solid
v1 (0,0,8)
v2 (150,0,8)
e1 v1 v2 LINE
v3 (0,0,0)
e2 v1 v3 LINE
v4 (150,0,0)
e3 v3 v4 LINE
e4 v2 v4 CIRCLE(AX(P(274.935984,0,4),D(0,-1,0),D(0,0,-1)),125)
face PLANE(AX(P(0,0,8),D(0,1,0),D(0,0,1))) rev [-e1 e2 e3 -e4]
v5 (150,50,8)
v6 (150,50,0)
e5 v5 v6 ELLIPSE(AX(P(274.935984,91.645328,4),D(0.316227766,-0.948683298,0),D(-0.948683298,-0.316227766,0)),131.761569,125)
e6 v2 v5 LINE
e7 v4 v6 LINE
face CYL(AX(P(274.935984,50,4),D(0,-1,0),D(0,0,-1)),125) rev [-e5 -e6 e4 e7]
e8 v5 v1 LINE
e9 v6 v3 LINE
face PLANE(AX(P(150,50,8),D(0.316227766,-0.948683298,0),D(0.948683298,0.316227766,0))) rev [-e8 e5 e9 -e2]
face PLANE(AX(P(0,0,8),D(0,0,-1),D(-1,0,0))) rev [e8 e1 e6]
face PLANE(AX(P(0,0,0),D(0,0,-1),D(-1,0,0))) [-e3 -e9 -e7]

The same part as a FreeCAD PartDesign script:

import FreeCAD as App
import Part
import Sketcher

V = App.Vector


def add_polygon(sketch, points):
    """Adds a closed chain of lines whose ends are joined by coincident constraints."""
    first, n = sketch.GeometryCount, len(points)
    for a, b in zip(points, points[1:] + points[:1]):
        sketch.addGeometry(Part.LineSegment(App.Vector(*a, 0), App.Vector(*b, 0)), False)
    for i in range(n):
        sketch.addConstraint(Sketcher.Constraint("Coincident", first + i, 2, first + (i + 1) % n, 1))

doc = App.newDocument("Part")
body = doc.addObject("PartDesign::Body", "Body")

# Sketch on XY plane
sketch1 = body.newObject("Sketcher::SketchObject", "Sketch")
sketch1.AttachmentSupport = (doc.getObject("XY_Plane"), [""])
sketch1.MapMode = "FlatFace"
add_polygon(sketch1, [(0, 0), (150, 0), (150, 50)])  # lines 0-2
sketch1.addConstraint([
    Sketcher.Constraint("Horizontal", 0),
    Sketcher.Constraint("Vertical", 1),
    Sketcher.Constraint("Coincident", 2, 2, -1, 1),
    Sketcher.Constraint("DistanceX", 0, 1, 0, 2, 150.0),
    Sketcher.Constraint("DistanceY", 1, 1, 1, 2, 50.0),
])
pad1 = body.newObject("PartDesign::Pad", "Pad")
pad1.Profile = sketch1
pad1.Length = 8

# Sketch on XZ plane
sketch2 = body.newObject("Sketcher::SketchObject", "Sketch001")
sketch2.AttachmentSupport = (doc.getObject("XZ_Plane"), [""])
sketch2.MapMode = "FlatFace"
sketch2.addGeometry(Part.Circle(V(275, 4, 0), V(0, 0, 1), 125), False)
sketch2.addConstraint([
    Sketcher.Constraint("Diameter", 0, 250.0),
    Sketcher.Constraint("DistanceY", -1, 1, 0, 3, 4.0),
    Sketcher.Constraint("DistanceX", -1, 1, 0, 3, 274.935984),
])
pocket1 = body.newObject("PartDesign::Pocket", "Pocket")
pocket1.Profile = sketch2
pocket1.Type = "ThroughAll"

doc.recompute()
